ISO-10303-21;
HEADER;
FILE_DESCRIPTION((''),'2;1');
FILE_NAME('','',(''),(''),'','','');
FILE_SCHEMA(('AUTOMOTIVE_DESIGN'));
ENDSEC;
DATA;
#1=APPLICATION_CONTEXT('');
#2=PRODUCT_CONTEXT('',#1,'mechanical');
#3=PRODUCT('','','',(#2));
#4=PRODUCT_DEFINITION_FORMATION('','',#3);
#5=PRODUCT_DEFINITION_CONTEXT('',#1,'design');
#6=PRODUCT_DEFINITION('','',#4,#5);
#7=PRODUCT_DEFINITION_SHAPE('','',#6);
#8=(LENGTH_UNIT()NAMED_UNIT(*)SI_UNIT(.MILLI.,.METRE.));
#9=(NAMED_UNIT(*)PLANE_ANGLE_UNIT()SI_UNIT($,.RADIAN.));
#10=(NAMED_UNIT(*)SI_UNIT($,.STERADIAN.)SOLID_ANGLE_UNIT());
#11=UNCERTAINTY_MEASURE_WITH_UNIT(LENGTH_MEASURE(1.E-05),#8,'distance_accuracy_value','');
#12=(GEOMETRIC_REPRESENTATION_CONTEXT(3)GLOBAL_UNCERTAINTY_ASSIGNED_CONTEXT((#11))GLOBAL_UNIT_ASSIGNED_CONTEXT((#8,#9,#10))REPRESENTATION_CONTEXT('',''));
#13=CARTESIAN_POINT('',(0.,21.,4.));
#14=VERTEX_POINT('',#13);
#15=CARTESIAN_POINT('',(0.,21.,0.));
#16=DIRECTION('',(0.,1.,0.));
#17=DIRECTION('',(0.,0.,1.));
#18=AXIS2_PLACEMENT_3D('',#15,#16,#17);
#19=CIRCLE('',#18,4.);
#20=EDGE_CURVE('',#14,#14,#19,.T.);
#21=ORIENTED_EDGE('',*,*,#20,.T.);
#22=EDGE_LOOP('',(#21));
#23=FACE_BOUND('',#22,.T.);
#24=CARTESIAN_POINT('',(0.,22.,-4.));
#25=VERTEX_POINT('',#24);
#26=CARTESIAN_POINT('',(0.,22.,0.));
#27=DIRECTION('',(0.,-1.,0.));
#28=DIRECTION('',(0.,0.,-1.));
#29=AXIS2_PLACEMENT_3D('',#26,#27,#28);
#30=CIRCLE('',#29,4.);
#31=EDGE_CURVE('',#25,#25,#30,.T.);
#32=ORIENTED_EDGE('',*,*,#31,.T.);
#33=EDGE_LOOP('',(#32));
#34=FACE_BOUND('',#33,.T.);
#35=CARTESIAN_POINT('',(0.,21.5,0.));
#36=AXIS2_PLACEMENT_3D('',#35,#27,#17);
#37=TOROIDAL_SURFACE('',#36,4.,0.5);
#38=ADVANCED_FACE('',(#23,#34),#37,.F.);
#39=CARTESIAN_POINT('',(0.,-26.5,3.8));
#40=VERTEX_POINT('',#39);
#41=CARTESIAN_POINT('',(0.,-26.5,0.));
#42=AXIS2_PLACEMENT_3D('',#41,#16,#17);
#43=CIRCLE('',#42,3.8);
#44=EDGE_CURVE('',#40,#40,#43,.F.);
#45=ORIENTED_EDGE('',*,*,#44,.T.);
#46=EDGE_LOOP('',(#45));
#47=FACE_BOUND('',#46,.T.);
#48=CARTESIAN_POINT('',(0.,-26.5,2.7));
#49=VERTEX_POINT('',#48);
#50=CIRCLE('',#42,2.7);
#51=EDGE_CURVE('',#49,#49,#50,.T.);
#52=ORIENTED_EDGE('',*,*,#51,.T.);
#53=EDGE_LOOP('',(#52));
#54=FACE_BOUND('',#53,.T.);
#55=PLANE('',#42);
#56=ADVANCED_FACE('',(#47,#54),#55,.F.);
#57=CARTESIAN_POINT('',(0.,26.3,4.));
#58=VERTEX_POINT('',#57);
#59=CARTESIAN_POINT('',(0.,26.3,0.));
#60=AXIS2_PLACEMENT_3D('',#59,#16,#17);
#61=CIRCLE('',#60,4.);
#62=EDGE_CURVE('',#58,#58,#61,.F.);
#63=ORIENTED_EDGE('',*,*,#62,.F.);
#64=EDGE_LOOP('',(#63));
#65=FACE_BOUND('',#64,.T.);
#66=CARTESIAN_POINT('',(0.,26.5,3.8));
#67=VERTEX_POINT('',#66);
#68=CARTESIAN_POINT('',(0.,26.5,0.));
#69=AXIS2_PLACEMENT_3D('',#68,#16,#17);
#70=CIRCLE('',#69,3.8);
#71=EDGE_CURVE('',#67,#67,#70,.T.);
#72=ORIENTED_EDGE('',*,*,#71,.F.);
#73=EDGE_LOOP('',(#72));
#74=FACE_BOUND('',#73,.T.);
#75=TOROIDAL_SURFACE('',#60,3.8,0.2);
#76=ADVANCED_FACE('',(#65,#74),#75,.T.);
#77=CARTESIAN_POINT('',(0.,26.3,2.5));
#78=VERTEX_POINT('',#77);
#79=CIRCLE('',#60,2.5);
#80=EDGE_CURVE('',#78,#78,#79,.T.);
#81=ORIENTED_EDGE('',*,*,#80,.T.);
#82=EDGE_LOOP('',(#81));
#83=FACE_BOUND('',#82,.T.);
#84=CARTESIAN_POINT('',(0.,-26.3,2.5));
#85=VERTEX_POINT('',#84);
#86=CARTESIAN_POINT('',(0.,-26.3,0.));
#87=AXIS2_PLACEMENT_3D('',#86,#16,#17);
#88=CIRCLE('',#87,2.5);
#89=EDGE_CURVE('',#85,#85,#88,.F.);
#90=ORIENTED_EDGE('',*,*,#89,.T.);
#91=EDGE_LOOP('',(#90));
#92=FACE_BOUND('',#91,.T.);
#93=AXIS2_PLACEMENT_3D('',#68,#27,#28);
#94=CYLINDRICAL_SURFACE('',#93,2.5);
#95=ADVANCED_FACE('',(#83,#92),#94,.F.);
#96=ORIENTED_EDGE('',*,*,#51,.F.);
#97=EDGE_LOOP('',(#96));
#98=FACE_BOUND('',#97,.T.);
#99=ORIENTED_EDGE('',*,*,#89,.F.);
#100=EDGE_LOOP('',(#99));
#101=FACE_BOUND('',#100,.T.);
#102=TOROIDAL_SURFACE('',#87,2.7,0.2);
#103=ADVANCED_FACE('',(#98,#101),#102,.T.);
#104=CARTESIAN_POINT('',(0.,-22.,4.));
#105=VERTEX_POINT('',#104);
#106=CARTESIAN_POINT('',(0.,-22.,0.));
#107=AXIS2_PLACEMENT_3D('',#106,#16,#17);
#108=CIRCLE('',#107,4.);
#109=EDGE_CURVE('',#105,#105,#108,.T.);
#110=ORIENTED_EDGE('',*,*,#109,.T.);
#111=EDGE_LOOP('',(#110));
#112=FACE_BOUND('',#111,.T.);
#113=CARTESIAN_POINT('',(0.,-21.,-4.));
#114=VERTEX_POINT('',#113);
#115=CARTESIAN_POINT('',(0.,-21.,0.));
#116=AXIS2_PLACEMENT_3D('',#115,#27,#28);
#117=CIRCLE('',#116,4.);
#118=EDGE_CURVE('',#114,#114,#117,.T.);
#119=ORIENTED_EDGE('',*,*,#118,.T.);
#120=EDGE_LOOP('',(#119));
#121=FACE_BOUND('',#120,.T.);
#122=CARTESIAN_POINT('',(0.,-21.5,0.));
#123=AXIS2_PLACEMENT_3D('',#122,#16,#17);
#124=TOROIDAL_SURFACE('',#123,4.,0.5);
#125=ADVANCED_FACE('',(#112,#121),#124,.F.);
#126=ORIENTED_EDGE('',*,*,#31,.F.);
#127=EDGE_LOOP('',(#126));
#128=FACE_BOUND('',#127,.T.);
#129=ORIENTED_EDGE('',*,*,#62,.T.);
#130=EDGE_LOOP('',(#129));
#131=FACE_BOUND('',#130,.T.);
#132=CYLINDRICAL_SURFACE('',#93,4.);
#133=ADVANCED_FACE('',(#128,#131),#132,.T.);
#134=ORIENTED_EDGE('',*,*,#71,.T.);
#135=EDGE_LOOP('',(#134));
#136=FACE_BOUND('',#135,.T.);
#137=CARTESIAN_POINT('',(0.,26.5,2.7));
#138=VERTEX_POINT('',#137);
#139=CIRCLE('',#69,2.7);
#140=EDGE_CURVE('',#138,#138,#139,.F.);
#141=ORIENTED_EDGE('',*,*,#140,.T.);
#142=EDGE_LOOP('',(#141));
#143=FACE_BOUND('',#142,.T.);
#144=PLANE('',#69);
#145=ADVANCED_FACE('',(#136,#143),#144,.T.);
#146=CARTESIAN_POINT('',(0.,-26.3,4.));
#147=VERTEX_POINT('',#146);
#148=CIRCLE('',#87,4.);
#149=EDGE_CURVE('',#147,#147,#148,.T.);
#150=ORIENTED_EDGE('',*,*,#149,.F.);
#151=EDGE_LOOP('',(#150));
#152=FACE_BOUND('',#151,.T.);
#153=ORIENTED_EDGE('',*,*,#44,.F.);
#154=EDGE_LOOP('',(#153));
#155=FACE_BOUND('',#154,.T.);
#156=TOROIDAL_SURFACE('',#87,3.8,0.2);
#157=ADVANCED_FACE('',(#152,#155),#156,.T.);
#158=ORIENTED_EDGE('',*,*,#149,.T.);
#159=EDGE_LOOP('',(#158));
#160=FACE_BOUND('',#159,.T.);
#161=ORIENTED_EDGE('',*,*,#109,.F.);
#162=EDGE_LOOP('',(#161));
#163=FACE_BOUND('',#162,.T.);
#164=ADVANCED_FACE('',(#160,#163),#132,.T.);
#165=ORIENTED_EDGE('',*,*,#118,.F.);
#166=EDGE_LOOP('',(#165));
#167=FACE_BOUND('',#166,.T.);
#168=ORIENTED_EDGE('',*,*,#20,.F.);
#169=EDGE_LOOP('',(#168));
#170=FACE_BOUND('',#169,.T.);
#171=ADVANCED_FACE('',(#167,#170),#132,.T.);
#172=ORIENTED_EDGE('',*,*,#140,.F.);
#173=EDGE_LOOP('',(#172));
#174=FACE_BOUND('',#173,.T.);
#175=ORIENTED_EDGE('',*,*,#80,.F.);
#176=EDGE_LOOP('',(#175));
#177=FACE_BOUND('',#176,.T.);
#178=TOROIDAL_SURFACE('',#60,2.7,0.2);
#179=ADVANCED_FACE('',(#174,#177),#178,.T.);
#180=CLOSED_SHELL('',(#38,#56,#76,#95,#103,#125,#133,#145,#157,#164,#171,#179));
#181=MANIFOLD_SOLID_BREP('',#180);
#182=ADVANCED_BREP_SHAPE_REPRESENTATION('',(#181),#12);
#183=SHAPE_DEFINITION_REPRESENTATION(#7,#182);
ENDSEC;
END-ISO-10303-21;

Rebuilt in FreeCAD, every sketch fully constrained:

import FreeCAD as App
import Part
import Sketcher
from FreeCAD import Vector


def edges_at(feature, points):
    """Names of the edges that pass closest to the given points."""
    edges = feature.Shape.Edges
    near = lambda p: min(range(len(edges)), key=lambda i: edges[i].distToShape(Part.Vertex(*p))[0])
    return sorted({f"Edge{near(p) + 1}" for p in points})

doc = App.newDocument("Part")
body = doc.addObject("PartDesign::Body", "Body")

# Sketch on XZ plane
sketch1 = body.newObject("Sketcher::SketchObject", "Sketch")
sketch1.AttachmentSupport = (doc.getObject("XZ_Plane"), [""])
sketch1.MapMode = "FlatFace"
sketch1.addGeometry(Part.Circle(Vector(0, 0, 0), Vector(0, 0, 1), 4), False)
sketch1.addGeometry(Part.Circle(Vector(0, 0, 0), Vector(0, 0, 1), 2.5), False)
sketch1.addConstraint(Sketcher.Constraint("Coincident", 0, 3, -1, 1))
sketch1.addConstraint(Sketcher.Constraint("Coincident", 1, 3, -1, 1))
sketch1.addConstraint(Sketcher.Constraint("Diameter", 0, 8.0))
sketch1.addConstraint(Sketcher.Constraint("Diameter", 1, 5.0))
pad1 = body.newObject("PartDesign::Pad", "Pad")
pad1.Profile = sketch1
pad1.Length = 53
pad1.Midplane = True

# Sketch on XY plane
sketch2 = body.newObject("Sketcher::SketchObject", "Sketch001")
sketch2.AttachmentSupport = (doc.getObject("XY_Plane"), [""])
sketch2.MapMode = "FlatFace"
sketch2.addGeometry(Part.Circle(Vector(4, -21.5, 0), Vector(0, 0, 1), 0.5), False)
sketch2.addConstraint(Sketcher.Constraint("Diameter", 0, 1.0))
sketch2.addConstraint(Sketcher.Constraint("DistanceX", -1, 1, 0, 3, 4.0))
sketch2.addConstraint(Sketcher.Constraint("DistanceY", 0, 3, -1, 1, 21.5))
groove = body.newObject("PartDesign::Groove", "Groove")
groove.Profile = sketch2
groove.ReferenceAxis = (sketch2, ["V_Axis"])
groove.Angle = 360
doc.recompute()

mirrored = body.newObject("PartDesign::Mirrored", "Mirrored")
mirrored.Originals = [groove]
mirrored.MirrorPlane = (doc.getObject("XZ_Plane"), [""])
body.Tip = mirrored
doc.recompute()

fillet = body.newObject("PartDesign::Fillet", "Fillet")
fillet.Base = (mirrored, edges_at(mirrored, [
    (-4, -26.5, 0),
    (-4, 26.5, 0),
    (-2.5, -26.5, 0),
    (-2.5, 26.5, 0),
]))
fillet.Radius = 0.2

doc.recompute()
